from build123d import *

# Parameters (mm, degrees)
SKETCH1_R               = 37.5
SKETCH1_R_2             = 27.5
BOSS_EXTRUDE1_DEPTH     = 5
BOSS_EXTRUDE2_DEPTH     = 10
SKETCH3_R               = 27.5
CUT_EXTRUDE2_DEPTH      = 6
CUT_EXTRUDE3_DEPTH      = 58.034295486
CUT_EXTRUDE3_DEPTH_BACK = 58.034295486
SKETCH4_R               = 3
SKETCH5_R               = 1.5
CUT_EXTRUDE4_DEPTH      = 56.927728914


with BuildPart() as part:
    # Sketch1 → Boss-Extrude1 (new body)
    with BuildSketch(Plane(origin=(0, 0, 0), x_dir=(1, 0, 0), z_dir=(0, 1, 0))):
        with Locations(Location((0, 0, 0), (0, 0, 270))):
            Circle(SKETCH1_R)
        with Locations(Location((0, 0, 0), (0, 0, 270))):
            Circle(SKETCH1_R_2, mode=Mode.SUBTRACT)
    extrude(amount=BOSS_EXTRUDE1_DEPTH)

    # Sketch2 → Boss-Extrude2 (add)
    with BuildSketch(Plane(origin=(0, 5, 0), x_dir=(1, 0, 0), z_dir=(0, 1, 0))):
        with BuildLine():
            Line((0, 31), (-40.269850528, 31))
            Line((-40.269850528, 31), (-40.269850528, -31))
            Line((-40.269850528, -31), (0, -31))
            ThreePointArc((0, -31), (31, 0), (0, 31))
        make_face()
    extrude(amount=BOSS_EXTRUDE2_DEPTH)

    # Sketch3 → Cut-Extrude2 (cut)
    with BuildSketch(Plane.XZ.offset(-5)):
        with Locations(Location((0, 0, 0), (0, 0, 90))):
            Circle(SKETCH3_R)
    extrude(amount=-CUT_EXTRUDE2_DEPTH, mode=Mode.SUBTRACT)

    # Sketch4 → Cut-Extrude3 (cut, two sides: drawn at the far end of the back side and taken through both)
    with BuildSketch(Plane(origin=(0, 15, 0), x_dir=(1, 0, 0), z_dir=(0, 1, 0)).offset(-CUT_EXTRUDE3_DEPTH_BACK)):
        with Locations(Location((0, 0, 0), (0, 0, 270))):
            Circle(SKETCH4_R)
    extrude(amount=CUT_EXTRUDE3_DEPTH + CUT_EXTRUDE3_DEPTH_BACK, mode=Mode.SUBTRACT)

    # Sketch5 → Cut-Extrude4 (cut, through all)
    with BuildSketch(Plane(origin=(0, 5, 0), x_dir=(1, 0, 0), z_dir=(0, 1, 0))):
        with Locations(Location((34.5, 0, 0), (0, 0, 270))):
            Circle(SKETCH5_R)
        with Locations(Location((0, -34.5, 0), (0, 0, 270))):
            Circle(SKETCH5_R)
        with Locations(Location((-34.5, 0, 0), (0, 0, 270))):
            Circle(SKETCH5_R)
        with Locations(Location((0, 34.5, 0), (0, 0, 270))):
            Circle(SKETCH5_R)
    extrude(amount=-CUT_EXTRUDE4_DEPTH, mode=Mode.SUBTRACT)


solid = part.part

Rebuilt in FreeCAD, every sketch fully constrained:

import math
import FreeCAD as App
import Part
import Sketcher

V = App.Vector
Q = App.Units.Quantity

doc = App.newDocument("Part")
params = doc.addObject("Spreadsheet::Sheet", "Params")
for row, (alias, value) in enumerate([
    ("sketch1_diameter", "75 mm"),
    ("sketch1_diameter2", "55 mm"),
    ("pad1_length", "5 mm"),
    ("sketch2_radius", "31 mm"),
    ("pad2_length", "10 mm"),
    ("sketch3_diameter", "55 mm"),
    ("pocket1_length", "6 mm"),
    ("sketch4_diameter", "6 mm"),
    ("sketch5_diameter", "3 mm"),
], start=1):
    params.set(f"A{row}", alias)
    params.set(f"B{row}", "=" + value)
    params.setAlias(f"B{row}", alias)

body = doc.addObject("PartDesign::Body", "Body")

# Sketch on XZ plane
sketch1 = doc.addObject("Sketcher::SketchObject", "Sketch")
body.addObject(sketch1)
sketch1.AttachmentSupport = (doc.XZ_Plane, [""])
sketch1.MapMode = "FlatFace"
sketch1.addGeometry([
    Part.Circle(V(0, 0, 0), V(0, 0, 1), 38),
    Part.Circle(V(0, 0, 0), V(0, 0, 1), 28),
], False)
sketch1.addConstraint([
    Sketcher.Constraint("Coincident", 0, 3, -1, 1),
    Sketcher.Constraint("Coincident", 1, 3, -1, 1),
    Sketcher.Constraint("Diameter", 0, Q("75 mm")),
    Sketcher.Constraint("Diameter", 1, Q("55 mm")),
])
sketch1.setExpression("Constraints[2]", "Params.sketch1_diameter")
sketch1.setExpression("Constraints[3]", "Params.sketch1_diameter2")
pad1 = doc.addObject("PartDesign::Pad", "Pad")
body.addObject(pad1)
pad1.Profile = sketch1
pad1.setExpression("Length", "Params.pad1_length")
pad1.Reversed = True

# Sketch on XZ plane
sketch2 = doc.addObject("Sketcher::SketchObject", "Sketch001")
body.addObject(sketch2)
sketch2.AttachmentSupport = (doc.XZ_Plane, [""])
sketch2.MapMode = "FlatFace"
sketch2.AttachmentOffset = App.Placement(V(0, 0, -5), App.Rotation())
sketch2.addGeometry([
    Part.LineSegment(V(0, -31, 0), V(-40, -31, 0)),
    Part.LineSegment(V(-40, -31, 0), V(-40, 31, 0)),
    Part.LineSegment(V(-40, 31, 0), V(0, 31, 0)),
    Part.ArcOfCircle(Part.Circle(V(0, 0, 0), V(0, 0, 1), 31), math.radians(-90), math.radians(90)),
], False)
sketch2.addConstraint([
    Sketcher.Constraint("Coincident", 0, 2, 1, 1),
    Sketcher.Constraint("Coincident", 1, 2, 2, 1),
    Sketcher.Constraint("Tangent", 2, 2, 3, 2),
    Sketcher.Constraint("Tangent", 3, 1, 0, 1),
    Sketcher.Constraint("Horizontal", 0),
    Sketcher.Constraint("Vertical", 1),
    Sketcher.Constraint("Horizontal", 2),
    Sketcher.Constraint("Coincident", 3, 3, -1, 1),
    Sketcher.Constraint("Radius", 3, Q("31 mm")),
    Sketcher.Constraint("DistanceX", 0, 2, 0, 1, Q("40.269851 mm")),
])
sketch2.setExpression("Constraints[8]", "Params.sketch2_radius")
pad2 = doc.addObject("PartDesign::Pad", "Pad001")
body.addObject(pad2)
pad2.Profile = sketch2
pad2.setExpression("Length", "Params.pad2_length")
pad2.Reversed = True

# Sketch on XZ plane
sketch3 = doc.addObject("Sketcher::SketchObject", "Sketch002")
body.addObject(sketch3)
sketch3.AttachmentSupport = (doc.XZ_Plane, [""])
sketch3.MapMode = "FlatFace"
sketch3.AttachmentOffset = App.Placement(V(0, 0, -5), App.Rotation())
sketch3.addGeometry(Part.Circle(V(0, 0, 0), V(0, 0, 1), 28), False)
sketch3.addConstraint([
    Sketcher.Constraint("Coincident", 0, 3, -1, 1),
    Sketcher.Constraint("Diameter", 0, Q("55 mm")),
])
sketch3.setExpression("Constraints[1]", "Params.sketch3_diameter")
pocket1 = doc.addObject("PartDesign::Pocket", "Pocket")
body.addObject(pocket1)
pocket1.Profile = sketch3
pocket1.setExpression("Length", "Params.pocket1_length")

# Sketch on XZ plane
sketch4 = doc.addObject("Sketcher::SketchObject", "Sketch003")
body.addObject(sketch4)
sketch4.AttachmentSupport = (doc.XZ_Plane, [""])
sketch4.MapMode = "FlatFace"
sketch4.AttachmentOffset = App.Placement(V(0, 0, -15), App.Rotation())
sketch4.addGeometry(Part.Circle(V(0, 0, 0), V(0, 0, 1), 3), False)
sketch4.addConstraint([
    Sketcher.Constraint("Coincident", 0, 3, -1, 1),
    Sketcher.Constraint("Diameter", 0, Q("6 mm")),
])
sketch4.setExpression("Constraints[1]", "Params.sketch4_diameter")
pocket2 = doc.addObject("PartDesign::Pocket", "Pocket001")
body.addObject(pocket2)
pocket2.Profile = sketch4
pocket2.Type = "ThroughAll"
pocket2.Midplane = True

# Sketch on XZ plane
sketch5 = doc.addObject("Sketcher::SketchObject", "Sketch004")
body.addObject(sketch5)
sketch5.AttachmentSupport = (doc.XZ_Plane, [""])
sketch5.MapMode = "FlatFace"
sketch5.AttachmentOffset = App.Placement(V(0, 0, -5), App.Rotation())
sketch5.addGeometry([
    Part.Circle(V(34.5, 0, 0), V(0, 0, 1), 1.5),
    Part.Circle(V(0, 34.5, 0), V(0, 0, 1), 1.5),
    Part.Circle(V(-34.5, 0, 0), V(0, 0, 1), 1.5),
    Part.Circle(V(0, -34.5, 0), V(0, 0, 1), 1.5),
], False)
sketch5.addConstraint([
    Sketcher.Constraint("Equal", 0, 1),
    Sketcher.Constraint("Equal", 1, 2),
    Sketcher.Constraint("Equal", 2, 3),
    Sketcher.Constraint("Symmetric", 0, 3, 2, 3, -1, 1),
    Sketcher.Constraint("Symmetric", 1, 3, 3, 3, -1, 1),
    Sketcher.Constraint("PointOnObject", 0, 3, -1),
    Sketcher.Constraint("PointOnObject", 1, 3, -2),
    Sketcher.Constraint("Diameter", 0, Q("3 mm")),
    Sketcher.Constraint("DistanceX", 2, 3, 0, 3, Q("69 mm")),
    Sketcher.Constraint("DistanceY", 3, 3, 1, 3, Q("69 mm")),
])
sketch5.setExpression("Constraints[7]", "Params.sketch5_diameter")
pocket3 = doc.addObject("PartDesign::Pocket", "Pocket002")
body.addObject(pocket3)
pocket3.Profile = sketch5
pocket3.Type = "ThroughAll"
pocket3.Reversed = True

doc.recompute()
